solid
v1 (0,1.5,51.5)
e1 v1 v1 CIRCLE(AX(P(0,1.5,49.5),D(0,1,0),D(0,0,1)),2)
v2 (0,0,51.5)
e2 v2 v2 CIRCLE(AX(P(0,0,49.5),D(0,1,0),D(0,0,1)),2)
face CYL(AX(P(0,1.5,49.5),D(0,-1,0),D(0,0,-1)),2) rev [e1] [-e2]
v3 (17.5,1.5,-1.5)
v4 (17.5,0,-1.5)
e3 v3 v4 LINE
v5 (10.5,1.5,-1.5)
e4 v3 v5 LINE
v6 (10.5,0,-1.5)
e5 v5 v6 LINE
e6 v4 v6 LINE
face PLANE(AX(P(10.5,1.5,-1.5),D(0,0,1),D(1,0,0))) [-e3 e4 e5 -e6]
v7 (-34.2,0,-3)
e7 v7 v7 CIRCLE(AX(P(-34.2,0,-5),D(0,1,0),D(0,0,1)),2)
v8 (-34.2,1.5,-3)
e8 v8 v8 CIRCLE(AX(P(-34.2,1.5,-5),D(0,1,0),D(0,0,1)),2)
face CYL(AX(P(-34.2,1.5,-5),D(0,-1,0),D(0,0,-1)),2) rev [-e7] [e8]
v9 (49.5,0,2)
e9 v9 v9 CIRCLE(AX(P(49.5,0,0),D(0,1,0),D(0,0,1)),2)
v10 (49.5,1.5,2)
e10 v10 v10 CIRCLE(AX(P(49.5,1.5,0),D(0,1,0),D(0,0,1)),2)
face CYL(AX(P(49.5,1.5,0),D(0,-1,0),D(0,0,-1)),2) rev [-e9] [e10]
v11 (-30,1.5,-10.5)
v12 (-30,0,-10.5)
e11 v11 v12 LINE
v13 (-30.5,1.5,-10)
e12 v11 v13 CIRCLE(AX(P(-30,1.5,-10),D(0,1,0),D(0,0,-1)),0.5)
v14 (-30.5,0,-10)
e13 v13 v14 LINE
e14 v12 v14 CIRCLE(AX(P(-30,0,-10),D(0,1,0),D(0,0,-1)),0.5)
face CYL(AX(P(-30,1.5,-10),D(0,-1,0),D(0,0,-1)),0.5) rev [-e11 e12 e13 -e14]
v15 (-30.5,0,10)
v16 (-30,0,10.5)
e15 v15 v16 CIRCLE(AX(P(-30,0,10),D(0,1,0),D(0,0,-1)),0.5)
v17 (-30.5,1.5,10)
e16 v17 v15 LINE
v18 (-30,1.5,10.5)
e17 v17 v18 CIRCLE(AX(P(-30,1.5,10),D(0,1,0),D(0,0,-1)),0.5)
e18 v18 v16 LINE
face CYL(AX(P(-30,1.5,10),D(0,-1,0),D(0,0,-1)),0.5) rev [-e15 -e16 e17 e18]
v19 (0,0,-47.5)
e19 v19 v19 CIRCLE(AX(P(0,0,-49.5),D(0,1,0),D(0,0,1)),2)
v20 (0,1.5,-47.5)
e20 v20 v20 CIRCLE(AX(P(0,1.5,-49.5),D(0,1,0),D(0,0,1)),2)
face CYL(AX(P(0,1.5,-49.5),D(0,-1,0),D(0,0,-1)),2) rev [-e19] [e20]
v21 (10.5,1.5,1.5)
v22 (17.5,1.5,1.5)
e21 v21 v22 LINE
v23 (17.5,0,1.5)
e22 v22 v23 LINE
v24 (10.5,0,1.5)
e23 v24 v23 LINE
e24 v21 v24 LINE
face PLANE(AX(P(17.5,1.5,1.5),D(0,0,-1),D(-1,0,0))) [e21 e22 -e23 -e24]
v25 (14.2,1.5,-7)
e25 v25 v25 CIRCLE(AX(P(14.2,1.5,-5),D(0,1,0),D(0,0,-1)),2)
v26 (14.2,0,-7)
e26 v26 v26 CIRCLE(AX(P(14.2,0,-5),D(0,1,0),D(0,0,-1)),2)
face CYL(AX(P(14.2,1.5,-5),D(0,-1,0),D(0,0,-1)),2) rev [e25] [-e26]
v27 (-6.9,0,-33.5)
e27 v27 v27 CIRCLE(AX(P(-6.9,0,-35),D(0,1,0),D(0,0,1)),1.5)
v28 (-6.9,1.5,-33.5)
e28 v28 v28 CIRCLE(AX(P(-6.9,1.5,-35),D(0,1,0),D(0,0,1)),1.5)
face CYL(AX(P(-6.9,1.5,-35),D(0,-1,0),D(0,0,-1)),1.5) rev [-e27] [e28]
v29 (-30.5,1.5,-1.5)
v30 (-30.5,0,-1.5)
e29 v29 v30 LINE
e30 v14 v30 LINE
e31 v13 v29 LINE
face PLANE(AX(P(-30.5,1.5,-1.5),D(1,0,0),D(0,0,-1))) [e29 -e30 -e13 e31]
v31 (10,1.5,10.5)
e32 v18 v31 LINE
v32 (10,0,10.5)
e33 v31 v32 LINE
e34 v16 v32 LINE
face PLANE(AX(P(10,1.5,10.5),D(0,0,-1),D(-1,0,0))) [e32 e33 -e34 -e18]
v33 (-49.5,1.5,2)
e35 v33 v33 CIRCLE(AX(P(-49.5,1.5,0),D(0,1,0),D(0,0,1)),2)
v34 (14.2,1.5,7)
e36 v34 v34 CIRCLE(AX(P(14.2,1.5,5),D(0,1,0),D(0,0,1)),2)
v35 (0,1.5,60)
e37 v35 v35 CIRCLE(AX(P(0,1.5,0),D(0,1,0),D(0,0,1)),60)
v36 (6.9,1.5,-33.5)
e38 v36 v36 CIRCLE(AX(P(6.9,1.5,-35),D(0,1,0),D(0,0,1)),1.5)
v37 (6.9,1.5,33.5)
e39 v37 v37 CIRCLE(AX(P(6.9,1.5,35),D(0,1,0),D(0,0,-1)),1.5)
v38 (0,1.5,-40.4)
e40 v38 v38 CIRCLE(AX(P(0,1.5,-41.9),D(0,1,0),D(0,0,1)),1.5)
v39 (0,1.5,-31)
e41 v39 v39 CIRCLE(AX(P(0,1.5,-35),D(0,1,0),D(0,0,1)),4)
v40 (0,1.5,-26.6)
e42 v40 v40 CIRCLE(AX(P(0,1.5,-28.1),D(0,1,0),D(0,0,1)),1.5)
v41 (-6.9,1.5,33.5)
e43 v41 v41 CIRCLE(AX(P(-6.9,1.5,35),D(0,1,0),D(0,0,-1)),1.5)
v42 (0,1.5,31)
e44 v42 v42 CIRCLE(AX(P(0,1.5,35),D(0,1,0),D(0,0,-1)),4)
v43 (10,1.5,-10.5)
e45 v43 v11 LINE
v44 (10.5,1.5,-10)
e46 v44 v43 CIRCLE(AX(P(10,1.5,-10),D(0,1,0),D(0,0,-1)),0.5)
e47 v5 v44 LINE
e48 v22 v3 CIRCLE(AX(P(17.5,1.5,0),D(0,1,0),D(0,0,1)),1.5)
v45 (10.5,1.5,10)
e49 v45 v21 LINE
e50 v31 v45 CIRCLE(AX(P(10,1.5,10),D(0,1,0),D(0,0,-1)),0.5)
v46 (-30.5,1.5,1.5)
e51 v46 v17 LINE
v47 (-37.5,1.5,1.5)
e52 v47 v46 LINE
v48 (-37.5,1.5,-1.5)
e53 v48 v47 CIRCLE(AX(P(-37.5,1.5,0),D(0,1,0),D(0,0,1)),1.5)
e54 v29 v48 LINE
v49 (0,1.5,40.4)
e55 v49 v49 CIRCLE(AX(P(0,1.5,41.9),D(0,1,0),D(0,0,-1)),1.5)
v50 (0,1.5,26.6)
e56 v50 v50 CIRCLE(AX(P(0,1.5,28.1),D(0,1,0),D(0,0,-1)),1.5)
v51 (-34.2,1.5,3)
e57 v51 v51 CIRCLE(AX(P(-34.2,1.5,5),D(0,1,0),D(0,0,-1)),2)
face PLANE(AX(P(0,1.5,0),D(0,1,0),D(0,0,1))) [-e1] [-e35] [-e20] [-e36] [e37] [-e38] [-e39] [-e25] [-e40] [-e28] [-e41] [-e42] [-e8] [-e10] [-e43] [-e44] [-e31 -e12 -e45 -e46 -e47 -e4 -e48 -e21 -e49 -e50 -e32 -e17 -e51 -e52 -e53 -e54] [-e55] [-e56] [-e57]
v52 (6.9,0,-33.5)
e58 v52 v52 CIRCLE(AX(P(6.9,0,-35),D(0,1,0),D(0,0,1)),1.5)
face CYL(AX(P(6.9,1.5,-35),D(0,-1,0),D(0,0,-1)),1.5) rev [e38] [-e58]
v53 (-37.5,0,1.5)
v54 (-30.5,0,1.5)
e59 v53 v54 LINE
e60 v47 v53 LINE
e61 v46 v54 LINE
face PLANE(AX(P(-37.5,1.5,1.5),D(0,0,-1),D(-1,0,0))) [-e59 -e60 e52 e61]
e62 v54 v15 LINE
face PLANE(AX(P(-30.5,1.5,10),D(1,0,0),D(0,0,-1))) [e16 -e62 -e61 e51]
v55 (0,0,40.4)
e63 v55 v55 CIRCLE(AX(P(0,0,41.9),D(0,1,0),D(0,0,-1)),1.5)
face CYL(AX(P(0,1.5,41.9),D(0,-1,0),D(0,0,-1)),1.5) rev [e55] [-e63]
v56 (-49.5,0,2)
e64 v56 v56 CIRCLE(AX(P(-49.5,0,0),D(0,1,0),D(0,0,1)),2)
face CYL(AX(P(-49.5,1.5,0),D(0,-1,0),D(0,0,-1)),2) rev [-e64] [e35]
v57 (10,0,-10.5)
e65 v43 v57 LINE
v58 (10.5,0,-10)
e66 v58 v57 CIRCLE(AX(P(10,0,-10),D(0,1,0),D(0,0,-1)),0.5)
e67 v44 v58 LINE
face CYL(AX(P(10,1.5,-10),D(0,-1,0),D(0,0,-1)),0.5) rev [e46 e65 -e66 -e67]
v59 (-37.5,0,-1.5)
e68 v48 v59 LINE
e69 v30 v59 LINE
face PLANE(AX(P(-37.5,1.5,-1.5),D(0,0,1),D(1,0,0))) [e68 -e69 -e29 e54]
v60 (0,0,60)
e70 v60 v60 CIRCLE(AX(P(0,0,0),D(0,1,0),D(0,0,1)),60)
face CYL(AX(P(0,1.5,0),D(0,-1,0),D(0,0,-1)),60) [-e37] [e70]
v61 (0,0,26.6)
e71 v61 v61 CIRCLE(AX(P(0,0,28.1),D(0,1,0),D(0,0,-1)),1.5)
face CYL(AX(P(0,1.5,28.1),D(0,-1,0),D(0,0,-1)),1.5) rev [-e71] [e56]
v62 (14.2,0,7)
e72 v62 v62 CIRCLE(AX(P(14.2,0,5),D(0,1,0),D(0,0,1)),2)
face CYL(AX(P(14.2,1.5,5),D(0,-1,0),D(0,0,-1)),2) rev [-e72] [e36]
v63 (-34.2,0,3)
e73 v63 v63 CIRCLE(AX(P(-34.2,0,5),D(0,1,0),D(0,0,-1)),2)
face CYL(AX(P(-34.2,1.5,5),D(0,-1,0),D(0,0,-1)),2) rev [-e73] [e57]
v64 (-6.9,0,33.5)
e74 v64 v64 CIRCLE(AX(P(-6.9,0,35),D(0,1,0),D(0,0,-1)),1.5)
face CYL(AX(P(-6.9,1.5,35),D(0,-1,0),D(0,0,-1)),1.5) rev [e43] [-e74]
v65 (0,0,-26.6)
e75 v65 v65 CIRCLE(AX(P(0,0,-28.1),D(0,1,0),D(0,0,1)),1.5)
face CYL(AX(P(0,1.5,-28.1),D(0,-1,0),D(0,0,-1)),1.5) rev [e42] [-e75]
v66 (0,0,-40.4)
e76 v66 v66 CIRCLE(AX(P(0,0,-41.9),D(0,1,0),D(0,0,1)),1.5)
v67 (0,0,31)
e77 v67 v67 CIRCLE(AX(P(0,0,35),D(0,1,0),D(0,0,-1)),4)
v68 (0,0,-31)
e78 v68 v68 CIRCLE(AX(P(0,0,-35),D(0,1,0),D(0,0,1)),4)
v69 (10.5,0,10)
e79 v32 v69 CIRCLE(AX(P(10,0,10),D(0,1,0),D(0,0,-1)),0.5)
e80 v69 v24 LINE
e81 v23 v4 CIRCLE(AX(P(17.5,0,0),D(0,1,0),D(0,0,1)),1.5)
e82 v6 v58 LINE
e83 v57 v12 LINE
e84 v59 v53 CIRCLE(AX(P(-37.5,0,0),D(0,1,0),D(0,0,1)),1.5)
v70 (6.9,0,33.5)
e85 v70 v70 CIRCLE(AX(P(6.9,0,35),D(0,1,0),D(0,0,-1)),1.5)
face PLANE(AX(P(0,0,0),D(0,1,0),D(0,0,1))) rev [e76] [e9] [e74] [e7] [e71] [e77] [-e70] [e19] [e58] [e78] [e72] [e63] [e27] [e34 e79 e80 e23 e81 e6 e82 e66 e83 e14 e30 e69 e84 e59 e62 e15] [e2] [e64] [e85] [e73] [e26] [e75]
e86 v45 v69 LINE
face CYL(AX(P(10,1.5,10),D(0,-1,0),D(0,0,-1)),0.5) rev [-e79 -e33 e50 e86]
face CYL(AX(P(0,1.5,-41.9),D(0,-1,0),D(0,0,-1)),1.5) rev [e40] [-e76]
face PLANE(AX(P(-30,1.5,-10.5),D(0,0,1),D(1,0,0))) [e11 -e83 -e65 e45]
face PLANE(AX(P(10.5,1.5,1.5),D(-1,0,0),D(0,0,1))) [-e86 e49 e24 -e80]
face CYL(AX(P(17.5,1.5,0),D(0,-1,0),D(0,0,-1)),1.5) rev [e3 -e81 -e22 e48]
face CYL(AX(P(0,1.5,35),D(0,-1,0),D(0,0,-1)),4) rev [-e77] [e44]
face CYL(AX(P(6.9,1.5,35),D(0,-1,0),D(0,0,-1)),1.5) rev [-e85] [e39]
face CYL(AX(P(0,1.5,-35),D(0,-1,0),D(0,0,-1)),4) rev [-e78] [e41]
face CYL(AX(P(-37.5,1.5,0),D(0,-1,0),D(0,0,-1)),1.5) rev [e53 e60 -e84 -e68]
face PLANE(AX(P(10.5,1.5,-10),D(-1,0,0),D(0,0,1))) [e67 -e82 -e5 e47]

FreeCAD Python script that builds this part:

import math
import FreeCAD as App
import Part
import Sketcher
from FreeCAD import Vector
Q = App.Units.Quantity

doc = App.newDocument("Part")
body = doc.addObject("PartDesign::Body", "Body")

# Sketch on XZ plane
sketch1 = doc.addObject("Sketcher::SketchObject", "Sketch")
body.addObject(sketch1)
sketch1.AttachmentSupport = (doc.XZ_Plane, [""])
sketch1.MapMode = "FlatFace"
sketch1.addGeometry([
    Part.Circle(Vector(0, 0, 0), Vector(0, 0, 1), 60),  # 0
    Part.Circle(Vector(-34.2, -5, 0), Vector(0, 0, 1), 2),  # 1
    Part.Circle(Vector(0, -49.5, 0), Vector(0, 0, 1), 2),  # 2
    Part.Circle(Vector(0, -41.9, 0), Vector(0, 0, 1), 1.5),  # 3
    Part.Circle(Vector(-6.9, -35, 0), Vector(0, 0, 1), 1.5),  # 4
    Part.Circle(Vector(0, -35, 0), Vector(0, 0, 1), 4),  # 5
    Part.Circle(Vector(0, -28.1, 0), Vector(0, 0, 1), 1.5),  # 6
    Part.Circle(Vector(-49.5, 0, 0), Vector(0, 0, 1), 2),  # 7
    Part.Circle(Vector(-34.2, 5, 0), Vector(0, 0, 1), 2),  # 8
    Part.LineSegment(Vector(-30.5, 1.5, 0), Vector(-37.5, 1.5, 0)),  # 9
    Part.ArcOfCircle(Part.Circle(Vector(-37.5, 0, 0), Vector(0, 0, 1), 1.5), math.radians(90), math.radians(270)),  # 10
    Part.LineSegment(Vector(-37.5, -1.5, 0), Vector(-30.5, -1.5, 0)),  # 11
    Part.LineSegment(Vector(-30.5, -1.5, 0), Vector(-30.5, -10, 0)),  # 12
    Part.ArcOfCircle(Part.Circle(Vector(-30, -10, 0), Vector(0, 0, 1), 0.5), math.radians(180), math.radians(270)),  # 13
    Part.LineSegment(Vector(-30, -10.5, 0), Vector(10, -10.5, 0)),  # 14
    Part.ArcOfCircle(Part.Circle(Vector(10, -10, 0), Vector(0, 0, 1), 0.5), math.radians(-90), math.radians(0)),  # 15
    Part.LineSegment(Vector(10.5, -10, 0), Vector(10.5, -1.5, 0)),  # 16
    Part.LineSegment(Vector(10.5, -1.5, 0), Vector(17.5, -1.5, 0)),  # 17
    Part.ArcOfCircle(Part.Circle(Vector(17.5, 0, 0), Vector(0, 0, 1), 1.5), math.radians(-90), math.radians(90)),  # 18
    Part.LineSegment(Vector(17.5, 1.5, 0), Vector(10.5, 1.5, 0)),  # 19
    Part.LineSegment(Vector(10.5, 1.5, 0), Vector(10.5, 10, 0)),  # 20
    Part.ArcOfCircle(Part.Circle(Vector(10, 10, 0), Vector(0, 0, 1), 0.5), math.radians(0), math.radians(90)),  # 21
    Part.LineSegment(Vector(10, 10.5, 0), Vector(-30, 10.5, 0)),  # 22
    Part.ArcOfCircle(Part.Circle(Vector(-30, 10, 0), Vector(0, 0, 1), 0.5), math.radians(90), math.radians(180)),  # 23
    Part.LineSegment(Vector(-30.5, 10, 0), Vector(-30.5, 1.5, 0)),  # 24
    Part.Circle(Vector(-6.9, 35, 0), Vector(0, 0, 1), 1.5),  # 25
    Part.Circle(Vector(6.9, -35, 0), Vector(0, 0, 1), 1.5),  # 26
    Part.Circle(Vector(14.2, -5, 0), Vector(0, 0, 1), 2),  # 27
    Part.Circle(Vector(49.5, 0, 0), Vector(0, 0, 1), 2),  # 28
    Part.Circle(Vector(14.2, 5, 0), Vector(0, 0, 1), 2),  # 29
    Part.Circle(Vector(0, 28.1, 0), Vector(0, 0, 1), 1.5),  # 30
    Part.Circle(Vector(0, 35, 0), Vector(0, 0, 1), 4),  # 31
    Part.Circle(Vector(6.9, 35, 0), Vector(0, 0, 1), 1.5),  # 32
    Part.Circle(Vector(0, 41.9, 0), Vector(0, 0, 1), 1.5),  # 33
    Part.Circle(Vector(0, 49.5, 0), Vector(0, 0, 1), 2),  # 34
], False)
sketch1.addConstraint([
    Sketcher.Constraint("Tangent", 9, 2, 10, 1),
    Sketcher.Constraint("Tangent", 10, 2, 11, 1),
    Sketcher.Constraint("Coincident", 11, 2, 12, 1),
    Sketcher.Constraint("Tangent", 12, 2, 13, 1),
    Sketcher.Constraint("Tangent", 13, 2, 14, 1),
    Sketcher.Constraint("Tangent", 14, 2, 15, 1),
    Sketcher.Constraint("Tangent", 15, 2, 16, 1),
    Sketcher.Constraint("Coincident", 16, 2, 17, 1),
    Sketcher.Constraint("Tangent", 17, 2, 18, 1),
    Sketcher.Constraint("Tangent", 18, 2, 19, 1),
    Sketcher.Constraint("Coincident", 19, 2, 20, 1),
    Sketcher.Constraint("Tangent", 20, 2, 21, 1),
    Sketcher.Constraint("Tangent", 21, 2, 22, 1),
    Sketcher.Constraint("Tangent", 22, 2, 23, 1),
    Sketcher.Constraint("Tangent", 23, 2, 24, 1),
    Sketcher.Constraint("Coincident", 24, 2, 9, 1),
    Sketcher.Constraint("Horizontal", 9),
    Sketcher.Constraint("Horizontal", 11),
    Sketcher.Constraint("Vertical", 12),
    Sketcher.Constraint("Horizontal", 14),
    Sketcher.Constraint("Vertical", 16),
    Sketcher.Constraint("Horizontal", 17),
    Sketcher.Constraint("Horizontal", 19),
    Sketcher.Constraint("Vertical", 20),
    Sketcher.Constraint("Horizontal", 22),
    Sketcher.Constraint("Vertical", 24),
    Sketcher.Constraint("Coincident", 0, 3, -1, 1),
    Sketcher.Constraint("Equal", 1, 2),
    Sketcher.Constraint("Equal", 3, 4),
    Sketcher.Constraint("Equal", 4, 6),
    Sketcher.Constraint("Equal", 2, 7),
    Sketcher.Constraint("Equal", 7, 8),
    Sketcher.Constraint("Equal", 6, 10),
    Sketcher.Constraint("Equal", 13, 15),
    Sketcher.Constraint("Equal", 10, 18),
    Sketcher.Constraint("Equal", 15, 21),
    Sketcher.Constraint("Equal", 21, 23),
    Sketcher.Constraint("Equal", 18, 25),
    Sketcher.Constraint("Equal", 25, 26),
    Sketcher.Constraint("Equal", 8, 27),
    Sketcher.Constraint("Equal", 27, 28),
    Sketcher.Constraint("Equal", 28, 29),
    Sketcher.Constraint("Equal", 26, 30),
    Sketcher.Constraint("Equal", 5, 31),
    Sketcher.Constraint("Equal", 30, 32),
    Sketcher.Constraint("Equal", 32, 33),
    Sketcher.Constraint("Equal", 29, 34),
    Sketcher.Constraint("Symmetric", 25, 3, 26, 3, -1, 1),
    Sketcher.Constraint("Symmetric", 7, 3, 28, 3, -1, 1),
    Sketcher.Constraint("Symmetric", 6, 3, 30, 3, -1, 1),
    Sketcher.Constraint("Symmetric", 5, 3, 31, 3, -1, 1),
    Sketcher.Constraint("Symmetric", 4, 3, 32, 3, -1, 1),
    Sketcher.Constraint("Symmetric", 3, 3, 33, 3, -1, 1),
    Sketcher.Constraint("Symmetric", 2, 3, 34, 3, -1, 1),
    Sketcher.Constraint("Symmetric", 4, 3, 26, 3, -2),
    Sketcher.Constraint("Symmetric", 1, 3, 8, 3, -1),
    Sketcher.Constraint("Symmetric", 15, 3, 21, 3, -1),
    Sketcher.Constraint("Symmetric", 27, 3, 29, 3, -1),
    Sketcher.Constraint("Symmetric", 11, 2, 24, 2, -1),
    Sketcher.Constraint("PointOnObject", 2, 3, -2),
    Sketcher.Constraint("PointOnObject", 3, 3, -2),
    Sketcher.Constraint("PointOnObject", 5, 3, -2),
    Sketcher.Constraint("PointOnObject", 6, 3, -2),
    Sketcher.Constraint("PointOnObject", 7, 3, -1),
    Sketcher.Constraint("PointOnObject", 18, 3, -1),
    Sketcher.Constraint("Horizontal", 4, 3, 5, 3),
    Sketcher.Constraint("Horizontal", 1, 3, 27, 3),
    Sketcher.Constraint("Equal", 11, 17),
    Sketcher.Constraint("Diameter", 0, Q("120 mm")),
    Sketcher.Constraint("Diameter", 1, Q("4 mm")),
    Sketcher.Constraint("Diameter", 3, Q("3 mm")),
    Sketcher.Constraint("Diameter", 5, Q("8 mm")),
    Sketcher.Constraint("Radius", 13, Q("0.5 mm")),
    Sketcher.Constraint("DistanceX", 9, 2, 9, 1, Q("7 mm")),
    Sketcher.Constraint("DistanceX", 14, 1, 14, 2, Q("40 mm")),
    Sketcher.Constraint("DistanceY", 12, 2, 12, 1, Q("8.5 mm")),
    Sketcher.Constraint("DistanceY", 1, 3, -1, 1, Q("5 mm")),
    Sketcher.Constraint("DistanceY", 4, 3, -1, 1, Q("35 mm")),
    Sketcher.Constraint("DistanceX", 13, 3, -1, 1, Q("30 mm")),
    Sketcher.Constraint("DistanceX", 7, 3, 10, 3, Q("12 mm")),
    Sketcher.Constraint("DistanceX", 1, 3, -1, 1, Q("34.2 mm")),
    Sketcher.Constraint("DistanceY", 2, 3, -1, 1, Q("49.5 mm")),
    Sketcher.Constraint("DistanceY", 3, 3, -1, 1, Q("41.9 mm")),
    Sketcher.Constraint("DistanceX", 4, 3, -1, 1, Q("6.9 mm")),
    Sketcher.Constraint("DistanceY", 6, 3, -1, 1, Q("28.1 mm")),
    Sketcher.Constraint("DistanceX", -1, 1, 27, 3, Q("14.2 mm")),
])
pad1 = doc.addObject("PartDesign::Pad", "Pad")
body.addObject(pad1)
pad1.Profile = sketch1
pad1.Length = 1.5
pad1.Reversed = True

doc.recompute()
